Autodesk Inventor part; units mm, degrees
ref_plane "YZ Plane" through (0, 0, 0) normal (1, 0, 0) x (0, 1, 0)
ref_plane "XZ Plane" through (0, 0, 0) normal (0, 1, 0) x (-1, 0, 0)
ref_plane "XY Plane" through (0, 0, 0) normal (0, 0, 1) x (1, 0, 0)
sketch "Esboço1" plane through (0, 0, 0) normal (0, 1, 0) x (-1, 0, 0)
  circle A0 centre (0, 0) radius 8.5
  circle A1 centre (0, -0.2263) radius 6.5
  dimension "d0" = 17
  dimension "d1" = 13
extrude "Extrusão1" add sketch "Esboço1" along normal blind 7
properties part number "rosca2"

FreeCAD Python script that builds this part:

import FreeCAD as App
import Part
import Sketcher
from FreeCAD import Vector

doc = App.newDocument("Part")
body = doc.addObject("PartDesign::Body", "Body")

# Sketch on XZ plane
sketch1 = body.newObject("Sketcher::SketchObject", "Sketch")
sketch1.AttachmentSupport = (doc.getObject("XZ_Plane"), [""])
sketch1.MapMode = "FlatFace"
sketch1.addGeometry([
    Part.Circle(Vector(0, 0, 0), Vector(0, 0, 1), 8.5),
    Part.Circle(Vector(0, -0.2263, 0), Vector(0, 0, 1), 6.5),
], False)
sketch1.addConstraint([
    Sketcher.Constraint("Coincident", 0, 3, -1, 1),
    Sketcher.Constraint("PointOnObject", 1, 3, -2),
    Sketcher.Constraint("Diameter", 0, 17.0),
    Sketcher.Constraint("Diameter", 1, 13.0),
    Sketcher.Constraint("DistanceY", 1, 3, -1, 1, 0.2263),
])
pad1 = body.newObject("PartDesign::Pad", "Pad")
pad1.Profile = sketch1
pad1.Length = 7
pad1.Reversed = True

doc.recompute()
